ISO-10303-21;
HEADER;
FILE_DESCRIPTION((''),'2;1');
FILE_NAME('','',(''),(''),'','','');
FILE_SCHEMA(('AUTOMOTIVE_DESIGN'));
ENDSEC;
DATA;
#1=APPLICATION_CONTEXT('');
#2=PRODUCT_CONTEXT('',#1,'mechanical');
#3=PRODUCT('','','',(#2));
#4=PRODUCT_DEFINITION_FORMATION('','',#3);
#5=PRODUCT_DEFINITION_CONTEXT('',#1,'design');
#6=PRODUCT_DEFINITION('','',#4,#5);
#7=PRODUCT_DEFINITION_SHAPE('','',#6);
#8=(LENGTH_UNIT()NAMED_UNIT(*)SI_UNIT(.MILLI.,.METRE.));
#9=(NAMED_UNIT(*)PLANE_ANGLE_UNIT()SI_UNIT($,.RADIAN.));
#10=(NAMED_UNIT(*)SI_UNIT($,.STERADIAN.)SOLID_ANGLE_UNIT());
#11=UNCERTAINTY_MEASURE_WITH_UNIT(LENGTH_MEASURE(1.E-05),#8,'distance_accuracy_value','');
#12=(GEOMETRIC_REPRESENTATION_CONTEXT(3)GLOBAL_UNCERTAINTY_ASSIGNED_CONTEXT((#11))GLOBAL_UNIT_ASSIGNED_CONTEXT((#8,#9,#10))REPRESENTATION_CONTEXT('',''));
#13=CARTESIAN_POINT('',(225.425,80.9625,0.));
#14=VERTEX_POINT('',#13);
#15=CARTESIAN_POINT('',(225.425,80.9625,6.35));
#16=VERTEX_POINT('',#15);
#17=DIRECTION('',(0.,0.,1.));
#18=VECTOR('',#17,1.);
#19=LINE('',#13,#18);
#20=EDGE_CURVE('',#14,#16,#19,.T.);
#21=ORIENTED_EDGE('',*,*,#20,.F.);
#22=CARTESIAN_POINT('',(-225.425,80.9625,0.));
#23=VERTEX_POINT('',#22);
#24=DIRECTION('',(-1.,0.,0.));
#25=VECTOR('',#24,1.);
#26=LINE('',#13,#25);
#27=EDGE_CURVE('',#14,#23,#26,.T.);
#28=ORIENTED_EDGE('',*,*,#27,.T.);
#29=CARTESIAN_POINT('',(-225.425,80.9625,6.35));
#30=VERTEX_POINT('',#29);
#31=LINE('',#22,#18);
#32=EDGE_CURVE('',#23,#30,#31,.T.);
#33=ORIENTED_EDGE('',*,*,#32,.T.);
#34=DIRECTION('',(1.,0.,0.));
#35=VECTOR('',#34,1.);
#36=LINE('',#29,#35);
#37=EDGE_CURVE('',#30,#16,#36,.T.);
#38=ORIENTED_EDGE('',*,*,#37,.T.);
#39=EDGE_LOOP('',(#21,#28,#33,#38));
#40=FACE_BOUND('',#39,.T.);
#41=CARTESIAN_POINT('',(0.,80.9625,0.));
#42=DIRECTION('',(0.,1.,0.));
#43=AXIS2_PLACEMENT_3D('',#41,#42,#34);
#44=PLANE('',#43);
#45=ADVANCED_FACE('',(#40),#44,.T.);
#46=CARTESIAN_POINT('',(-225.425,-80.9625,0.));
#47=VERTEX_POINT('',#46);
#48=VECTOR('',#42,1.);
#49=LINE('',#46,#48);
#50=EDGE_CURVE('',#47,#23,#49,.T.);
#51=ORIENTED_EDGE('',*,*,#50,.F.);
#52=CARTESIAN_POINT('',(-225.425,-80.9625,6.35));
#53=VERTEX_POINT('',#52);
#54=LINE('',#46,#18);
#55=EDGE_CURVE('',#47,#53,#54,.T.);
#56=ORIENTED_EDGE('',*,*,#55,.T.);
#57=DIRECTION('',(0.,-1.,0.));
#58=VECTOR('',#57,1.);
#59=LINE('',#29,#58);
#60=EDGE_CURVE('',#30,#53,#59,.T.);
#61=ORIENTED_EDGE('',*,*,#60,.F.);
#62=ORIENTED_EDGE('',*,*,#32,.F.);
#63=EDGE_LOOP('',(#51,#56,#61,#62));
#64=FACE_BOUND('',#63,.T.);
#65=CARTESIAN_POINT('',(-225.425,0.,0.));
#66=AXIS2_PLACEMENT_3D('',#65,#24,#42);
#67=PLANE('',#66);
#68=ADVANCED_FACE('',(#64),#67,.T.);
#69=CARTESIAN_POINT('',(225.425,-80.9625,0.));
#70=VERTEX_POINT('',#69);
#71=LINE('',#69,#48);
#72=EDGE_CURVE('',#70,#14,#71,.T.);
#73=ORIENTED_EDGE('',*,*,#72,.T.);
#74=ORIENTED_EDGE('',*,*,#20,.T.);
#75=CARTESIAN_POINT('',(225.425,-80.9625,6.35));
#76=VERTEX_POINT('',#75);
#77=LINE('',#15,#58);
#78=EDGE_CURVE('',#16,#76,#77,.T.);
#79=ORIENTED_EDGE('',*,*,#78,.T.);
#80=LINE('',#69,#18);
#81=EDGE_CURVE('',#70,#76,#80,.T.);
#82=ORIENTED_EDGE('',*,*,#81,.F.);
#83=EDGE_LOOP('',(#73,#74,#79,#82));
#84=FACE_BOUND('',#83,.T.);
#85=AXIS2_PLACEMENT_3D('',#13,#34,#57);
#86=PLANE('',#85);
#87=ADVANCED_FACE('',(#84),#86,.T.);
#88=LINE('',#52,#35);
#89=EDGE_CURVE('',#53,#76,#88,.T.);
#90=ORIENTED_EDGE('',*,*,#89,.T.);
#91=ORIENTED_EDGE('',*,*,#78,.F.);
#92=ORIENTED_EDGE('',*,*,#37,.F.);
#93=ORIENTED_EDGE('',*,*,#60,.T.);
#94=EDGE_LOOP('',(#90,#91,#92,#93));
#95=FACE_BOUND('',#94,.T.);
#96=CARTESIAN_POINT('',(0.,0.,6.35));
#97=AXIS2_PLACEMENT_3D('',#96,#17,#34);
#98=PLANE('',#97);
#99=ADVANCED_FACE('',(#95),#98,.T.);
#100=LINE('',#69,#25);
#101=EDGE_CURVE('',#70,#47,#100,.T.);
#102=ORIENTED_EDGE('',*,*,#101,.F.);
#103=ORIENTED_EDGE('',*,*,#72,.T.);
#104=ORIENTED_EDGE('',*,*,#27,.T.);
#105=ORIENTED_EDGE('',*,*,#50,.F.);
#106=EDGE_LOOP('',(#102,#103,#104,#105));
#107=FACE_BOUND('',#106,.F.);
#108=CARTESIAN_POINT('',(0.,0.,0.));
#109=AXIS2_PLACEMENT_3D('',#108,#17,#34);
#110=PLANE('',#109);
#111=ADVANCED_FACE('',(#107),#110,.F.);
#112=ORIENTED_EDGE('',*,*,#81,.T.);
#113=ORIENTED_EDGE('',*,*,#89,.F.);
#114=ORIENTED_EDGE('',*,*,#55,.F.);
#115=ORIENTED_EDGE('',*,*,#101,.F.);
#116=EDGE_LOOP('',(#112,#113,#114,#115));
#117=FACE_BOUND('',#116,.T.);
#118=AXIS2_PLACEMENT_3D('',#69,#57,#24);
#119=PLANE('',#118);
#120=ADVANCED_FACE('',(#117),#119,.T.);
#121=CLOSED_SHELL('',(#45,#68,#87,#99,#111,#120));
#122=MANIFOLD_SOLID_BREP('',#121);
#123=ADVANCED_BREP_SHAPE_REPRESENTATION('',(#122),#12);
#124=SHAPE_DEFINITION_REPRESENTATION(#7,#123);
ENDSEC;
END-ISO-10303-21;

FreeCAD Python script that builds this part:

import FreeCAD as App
import Part
import Sketcher
from FreeCAD import Vector
Q = App.Units.Quantity


def add_polygon(sketch, points):
    """Adds a closed chain of lines whose ends are joined by coincident constraints."""
    first, n = sketch.GeometryCount, len(points)
    for a, b in zip(points, points[1:] + points[:1]):
        sketch.addGeometry(Part.LineSegment(App.Vector(*a, 0), App.Vector(*b, 0)), False)
    for i in range(n):
        sketch.addConstraint(Sketcher.Constraint("Coincident", first + i, 2, first + (i + 1) % n, 1))

doc = App.newDocument("Part")
params = doc.addObject("Spreadsheet::Sheet", "Params")
for row, (alias, value) in enumerate([
    ("sketch1_width", "17.75 in"),
    ("sketch1_height", "6.375 in"),
    ("pad1_length", "0.25 in"),
], start=1):
    params.set(f"A{row}", alias)
    params.set(f"B{row}", "=" + value)
    params.setAlias(f"B{row}", alias)

body = doc.addObject("PartDesign::Body", "Body")

# Sketch on XY plane
sketch1 = body.newObject("Sketcher::SketchObject", "Sketch")
sketch1.AttachmentSupport = (doc.getObject("XY_Plane"), [""])
sketch1.MapMode = "FlatFace"
add_polygon(sketch1, [(225, 81), (-225, 81), (-225, -81), (225, -81)])  # lines 0-3
sketch1.addConstraint(Sketcher.Constraint("Horizontal", 0))
sketch1.addConstraint(Sketcher.Constraint("Vertical", 1))
sketch1.addConstraint(Sketcher.Constraint("Horizontal", 2))
sketch1.addConstraint(Sketcher.Constraint("Vertical", 3))
sketch1.addConstraint(Sketcher.Constraint("Symmetric", 0, 2, 2, 2, -1, 1))
sketch1.addConstraint(Sketcher.Constraint("DistanceX", 0, 2, 0, 1, Q("17.75 in")))
sketch1.addConstraint(Sketcher.Constraint("DistanceY", 1, 2, 1, 1, Q("6.375 in")))
sketch1.setExpression("Constraints[9]", "Params.sketch1_width")
sketch1.setExpression("Constraints[10]", "Params.sketch1_height")
pad1 = body.newObject("PartDesign::Pad", "Pad")
pad1.Profile = sketch1
pad1.setExpression("Length", "Params.pad1_length")

doc.recompute()
